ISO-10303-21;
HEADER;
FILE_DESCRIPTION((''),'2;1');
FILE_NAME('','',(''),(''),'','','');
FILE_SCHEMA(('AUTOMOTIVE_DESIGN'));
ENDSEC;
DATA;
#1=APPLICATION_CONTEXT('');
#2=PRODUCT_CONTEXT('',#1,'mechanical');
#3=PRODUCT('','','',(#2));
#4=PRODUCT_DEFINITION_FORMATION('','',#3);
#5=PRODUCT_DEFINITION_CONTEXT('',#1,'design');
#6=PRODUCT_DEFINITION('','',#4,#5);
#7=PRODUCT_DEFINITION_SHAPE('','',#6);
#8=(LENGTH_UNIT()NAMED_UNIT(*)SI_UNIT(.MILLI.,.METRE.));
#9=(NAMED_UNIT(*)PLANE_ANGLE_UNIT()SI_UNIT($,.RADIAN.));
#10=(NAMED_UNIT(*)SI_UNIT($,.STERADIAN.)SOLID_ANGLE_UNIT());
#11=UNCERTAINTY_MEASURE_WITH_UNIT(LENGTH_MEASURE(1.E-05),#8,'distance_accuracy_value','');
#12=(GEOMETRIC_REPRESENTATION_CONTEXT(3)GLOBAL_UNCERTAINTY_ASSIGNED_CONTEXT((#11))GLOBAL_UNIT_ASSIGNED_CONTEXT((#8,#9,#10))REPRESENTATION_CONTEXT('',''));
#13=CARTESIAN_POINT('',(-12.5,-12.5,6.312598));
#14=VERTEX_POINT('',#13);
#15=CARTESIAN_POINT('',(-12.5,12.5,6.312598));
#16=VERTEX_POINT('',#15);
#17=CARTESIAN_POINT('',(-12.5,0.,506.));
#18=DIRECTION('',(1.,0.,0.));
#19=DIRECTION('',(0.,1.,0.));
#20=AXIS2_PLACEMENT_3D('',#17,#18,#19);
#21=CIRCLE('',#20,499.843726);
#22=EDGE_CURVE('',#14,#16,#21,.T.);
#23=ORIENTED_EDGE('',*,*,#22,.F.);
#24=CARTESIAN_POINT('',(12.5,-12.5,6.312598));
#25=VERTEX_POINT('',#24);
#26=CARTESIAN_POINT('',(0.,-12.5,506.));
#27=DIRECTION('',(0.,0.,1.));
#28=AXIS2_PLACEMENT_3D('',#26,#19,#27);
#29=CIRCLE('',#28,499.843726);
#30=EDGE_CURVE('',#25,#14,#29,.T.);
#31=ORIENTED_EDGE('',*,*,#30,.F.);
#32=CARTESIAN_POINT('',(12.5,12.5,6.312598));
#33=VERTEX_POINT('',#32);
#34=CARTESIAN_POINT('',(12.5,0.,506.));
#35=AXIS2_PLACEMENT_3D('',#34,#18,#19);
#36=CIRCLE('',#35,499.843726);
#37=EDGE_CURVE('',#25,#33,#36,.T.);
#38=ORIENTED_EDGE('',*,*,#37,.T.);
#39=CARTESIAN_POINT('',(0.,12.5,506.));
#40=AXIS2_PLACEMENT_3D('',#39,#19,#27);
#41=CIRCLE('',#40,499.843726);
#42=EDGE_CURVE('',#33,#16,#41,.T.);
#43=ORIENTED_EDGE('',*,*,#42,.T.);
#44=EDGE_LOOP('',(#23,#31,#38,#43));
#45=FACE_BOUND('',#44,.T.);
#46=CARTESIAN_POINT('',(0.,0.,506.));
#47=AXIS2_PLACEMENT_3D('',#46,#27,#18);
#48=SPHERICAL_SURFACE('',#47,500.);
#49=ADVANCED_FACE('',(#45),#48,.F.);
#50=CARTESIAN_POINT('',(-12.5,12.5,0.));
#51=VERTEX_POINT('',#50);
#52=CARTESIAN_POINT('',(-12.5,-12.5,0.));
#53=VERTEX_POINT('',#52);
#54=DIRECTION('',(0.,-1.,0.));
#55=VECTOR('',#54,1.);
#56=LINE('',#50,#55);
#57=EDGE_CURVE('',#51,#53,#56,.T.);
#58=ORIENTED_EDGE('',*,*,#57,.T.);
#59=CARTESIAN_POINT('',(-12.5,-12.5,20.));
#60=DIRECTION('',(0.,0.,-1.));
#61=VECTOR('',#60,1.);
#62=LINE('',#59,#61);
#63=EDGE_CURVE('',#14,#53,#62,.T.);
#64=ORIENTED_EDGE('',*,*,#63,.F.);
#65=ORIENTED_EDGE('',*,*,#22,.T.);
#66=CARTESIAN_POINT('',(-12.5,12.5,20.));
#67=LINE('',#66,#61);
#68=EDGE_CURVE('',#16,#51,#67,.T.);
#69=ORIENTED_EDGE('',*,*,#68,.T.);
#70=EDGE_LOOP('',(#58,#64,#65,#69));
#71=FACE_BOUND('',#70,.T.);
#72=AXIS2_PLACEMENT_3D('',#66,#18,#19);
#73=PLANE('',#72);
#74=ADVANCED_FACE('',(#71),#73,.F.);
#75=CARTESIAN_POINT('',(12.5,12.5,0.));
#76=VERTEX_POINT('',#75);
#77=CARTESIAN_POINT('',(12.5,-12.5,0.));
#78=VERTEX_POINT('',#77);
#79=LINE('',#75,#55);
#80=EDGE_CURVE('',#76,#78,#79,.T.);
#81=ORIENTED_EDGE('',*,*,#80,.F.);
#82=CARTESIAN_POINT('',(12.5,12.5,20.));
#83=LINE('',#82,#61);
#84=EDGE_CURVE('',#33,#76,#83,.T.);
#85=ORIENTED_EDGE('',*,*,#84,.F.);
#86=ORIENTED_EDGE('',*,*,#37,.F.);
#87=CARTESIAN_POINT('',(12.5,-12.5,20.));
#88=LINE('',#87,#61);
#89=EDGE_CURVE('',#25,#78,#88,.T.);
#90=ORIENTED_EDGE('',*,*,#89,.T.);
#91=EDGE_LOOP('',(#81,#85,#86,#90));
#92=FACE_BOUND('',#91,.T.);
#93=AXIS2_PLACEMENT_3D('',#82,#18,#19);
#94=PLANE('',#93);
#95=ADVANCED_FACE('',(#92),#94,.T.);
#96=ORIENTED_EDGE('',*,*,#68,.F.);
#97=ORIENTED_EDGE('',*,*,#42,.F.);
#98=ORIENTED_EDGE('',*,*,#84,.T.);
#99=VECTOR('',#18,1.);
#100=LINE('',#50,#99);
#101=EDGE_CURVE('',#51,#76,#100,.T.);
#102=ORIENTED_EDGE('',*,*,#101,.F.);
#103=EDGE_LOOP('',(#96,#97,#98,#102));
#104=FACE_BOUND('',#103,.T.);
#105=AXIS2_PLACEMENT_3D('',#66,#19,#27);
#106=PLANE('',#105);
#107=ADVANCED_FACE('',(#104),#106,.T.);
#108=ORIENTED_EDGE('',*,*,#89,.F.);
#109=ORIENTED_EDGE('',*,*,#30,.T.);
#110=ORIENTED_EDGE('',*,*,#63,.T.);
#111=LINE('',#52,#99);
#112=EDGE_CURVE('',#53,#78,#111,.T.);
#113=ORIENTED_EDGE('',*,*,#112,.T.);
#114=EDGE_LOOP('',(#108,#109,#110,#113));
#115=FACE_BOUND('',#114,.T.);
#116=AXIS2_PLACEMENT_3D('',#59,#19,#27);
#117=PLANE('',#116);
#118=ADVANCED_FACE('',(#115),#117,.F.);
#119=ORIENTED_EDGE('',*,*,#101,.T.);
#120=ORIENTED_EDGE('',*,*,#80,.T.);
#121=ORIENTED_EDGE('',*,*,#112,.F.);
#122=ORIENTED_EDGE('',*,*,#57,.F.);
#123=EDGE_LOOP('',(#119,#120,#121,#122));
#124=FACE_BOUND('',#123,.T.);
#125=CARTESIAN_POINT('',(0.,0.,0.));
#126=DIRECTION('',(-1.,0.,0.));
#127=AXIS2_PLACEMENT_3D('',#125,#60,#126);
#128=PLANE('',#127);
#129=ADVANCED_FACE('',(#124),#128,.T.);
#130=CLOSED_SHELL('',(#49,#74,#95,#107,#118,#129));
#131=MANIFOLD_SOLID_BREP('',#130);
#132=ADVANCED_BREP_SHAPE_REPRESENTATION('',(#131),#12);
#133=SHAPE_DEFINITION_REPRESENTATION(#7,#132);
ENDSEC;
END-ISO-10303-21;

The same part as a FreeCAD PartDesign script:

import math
import FreeCAD as App
import Part
import Sketcher

V = App.Vector
Q = App.Units.Quantity

doc = App.newDocument("Part")
params = doc.addObject("Spreadsheet::Sheet", "Params")
for row, (alias, value) in enumerate([
    ("sketch1_width", "25 mm"),
    ("pad1_length", "20 mm"),
    ("sketch2_radius", "500 mm"),
    ("groove_angle", "360 deg"),
], start=1):
    params.set(f"A{row}", alias)
    params.set(f"B{row}", "=" + value)
    params.setAlias(f"B{row}", alias)

body = doc.addObject("PartDesign::Body", "Body")

# Sketch on XY plane
sketch1 = body.newObject("Sketcher::SketchObject", "Sketch")
sketch1.AttachmentSupport = (doc.getObject("XY_Plane"), [""])
sketch1.MapMode = "FlatFace"
sketch1.addGeometry([
    Part.LineSegment(V(-12, 12, 0), V(-12, -12, 0)),
    Part.LineSegment(V(-12, -12, 0), V(12, -12, 0)),
    Part.LineSegment(V(12, -12, 0), V(12, 12, 0)),
    Part.LineSegment(V(12, 12, 0), V(-12, 12, 0)),
], False)
sketch1.addConstraint([
    Sketcher.Constraint("Coincident", 0, 2, 1, 1),
    Sketcher.Constraint("Coincident", 1, 2, 2, 1),
    Sketcher.Constraint("Coincident", 2, 2, 3, 1),
    Sketcher.Constraint("Coincident", 3, 2, 0, 1),
    Sketcher.Constraint("Vertical", 0),
    Sketcher.Constraint("Horizontal", 1),
    Sketcher.Constraint("Vertical", 2),
    Sketcher.Constraint("Horizontal", 3),
    Sketcher.Constraint("Symmetric", 0, 2, 2, 2, -1, 1),
    Sketcher.Constraint("Equal", 3, 0),
    Sketcher.Constraint("DistanceX", 1, 1, 1, 2, Q("25 mm")),
])
sketch1.setExpression("Constraints[10]", "Params.sketch1_width")
pad1 = body.newObject("PartDesign::Pad", "Pad")
pad1.Profile = sketch1
pad1.setExpression("Length", "Params.pad1_length")

# Sketch on XZ plane
sketch2 = body.newObject("Sketcher::SketchObject", "Sketch001")
sketch2.AttachmentSupport = (doc.getObject("XZ_Plane"), [""])
sketch2.MapMode = "FlatFace"
sketch2.addGeometry([
    Part.LineSegment(V(0, 395, 0), V(487, 395, 0)),
    Part.ArcOfCircle(Part.Circle(V(0, 506, 0), V(0, 0, 1), 500), math.radians(-90), math.radians(-13)),
    Part.LineSegment(V(0, 6, 0), V(0, 395, 0)),
], False)
sketch2.addConstraint([
    Sketcher.Constraint("Coincident", 0, 2, 1, 2),
    Sketcher.Constraint("Coincident", 1, 1, 2, 1),
    Sketcher.Constraint("Coincident", 2, 2, 0, 1),
    Sketcher.Constraint("Horizontal", 0),
    Sketcher.Constraint("Vertical", 2),
    Sketcher.Constraint("PointOnObject", 1, 3, -2),
    Sketcher.Constraint("PointOnObject", 2, 2, -2),
    Sketcher.Constraint("Radius", 1, Q("500 mm")),
    Sketcher.Constraint("DistanceY", -1, 1, 1, 3, Q("506 mm")),
    Sketcher.Constraint("DistanceX", 0, 1, 0, 2, Q("487.422731 mm")),
])
sketch2.setExpression("Constraints[7]", "Params.sketch2_radius")
groove = body.newObject("PartDesign::Groove", "Groove")
groove.Profile = sketch2
groove.ReferenceAxis = (sketch2, ["V_Axis"])
groove.setExpression("Angle", "Params.groove_angle")

doc.recompute()
